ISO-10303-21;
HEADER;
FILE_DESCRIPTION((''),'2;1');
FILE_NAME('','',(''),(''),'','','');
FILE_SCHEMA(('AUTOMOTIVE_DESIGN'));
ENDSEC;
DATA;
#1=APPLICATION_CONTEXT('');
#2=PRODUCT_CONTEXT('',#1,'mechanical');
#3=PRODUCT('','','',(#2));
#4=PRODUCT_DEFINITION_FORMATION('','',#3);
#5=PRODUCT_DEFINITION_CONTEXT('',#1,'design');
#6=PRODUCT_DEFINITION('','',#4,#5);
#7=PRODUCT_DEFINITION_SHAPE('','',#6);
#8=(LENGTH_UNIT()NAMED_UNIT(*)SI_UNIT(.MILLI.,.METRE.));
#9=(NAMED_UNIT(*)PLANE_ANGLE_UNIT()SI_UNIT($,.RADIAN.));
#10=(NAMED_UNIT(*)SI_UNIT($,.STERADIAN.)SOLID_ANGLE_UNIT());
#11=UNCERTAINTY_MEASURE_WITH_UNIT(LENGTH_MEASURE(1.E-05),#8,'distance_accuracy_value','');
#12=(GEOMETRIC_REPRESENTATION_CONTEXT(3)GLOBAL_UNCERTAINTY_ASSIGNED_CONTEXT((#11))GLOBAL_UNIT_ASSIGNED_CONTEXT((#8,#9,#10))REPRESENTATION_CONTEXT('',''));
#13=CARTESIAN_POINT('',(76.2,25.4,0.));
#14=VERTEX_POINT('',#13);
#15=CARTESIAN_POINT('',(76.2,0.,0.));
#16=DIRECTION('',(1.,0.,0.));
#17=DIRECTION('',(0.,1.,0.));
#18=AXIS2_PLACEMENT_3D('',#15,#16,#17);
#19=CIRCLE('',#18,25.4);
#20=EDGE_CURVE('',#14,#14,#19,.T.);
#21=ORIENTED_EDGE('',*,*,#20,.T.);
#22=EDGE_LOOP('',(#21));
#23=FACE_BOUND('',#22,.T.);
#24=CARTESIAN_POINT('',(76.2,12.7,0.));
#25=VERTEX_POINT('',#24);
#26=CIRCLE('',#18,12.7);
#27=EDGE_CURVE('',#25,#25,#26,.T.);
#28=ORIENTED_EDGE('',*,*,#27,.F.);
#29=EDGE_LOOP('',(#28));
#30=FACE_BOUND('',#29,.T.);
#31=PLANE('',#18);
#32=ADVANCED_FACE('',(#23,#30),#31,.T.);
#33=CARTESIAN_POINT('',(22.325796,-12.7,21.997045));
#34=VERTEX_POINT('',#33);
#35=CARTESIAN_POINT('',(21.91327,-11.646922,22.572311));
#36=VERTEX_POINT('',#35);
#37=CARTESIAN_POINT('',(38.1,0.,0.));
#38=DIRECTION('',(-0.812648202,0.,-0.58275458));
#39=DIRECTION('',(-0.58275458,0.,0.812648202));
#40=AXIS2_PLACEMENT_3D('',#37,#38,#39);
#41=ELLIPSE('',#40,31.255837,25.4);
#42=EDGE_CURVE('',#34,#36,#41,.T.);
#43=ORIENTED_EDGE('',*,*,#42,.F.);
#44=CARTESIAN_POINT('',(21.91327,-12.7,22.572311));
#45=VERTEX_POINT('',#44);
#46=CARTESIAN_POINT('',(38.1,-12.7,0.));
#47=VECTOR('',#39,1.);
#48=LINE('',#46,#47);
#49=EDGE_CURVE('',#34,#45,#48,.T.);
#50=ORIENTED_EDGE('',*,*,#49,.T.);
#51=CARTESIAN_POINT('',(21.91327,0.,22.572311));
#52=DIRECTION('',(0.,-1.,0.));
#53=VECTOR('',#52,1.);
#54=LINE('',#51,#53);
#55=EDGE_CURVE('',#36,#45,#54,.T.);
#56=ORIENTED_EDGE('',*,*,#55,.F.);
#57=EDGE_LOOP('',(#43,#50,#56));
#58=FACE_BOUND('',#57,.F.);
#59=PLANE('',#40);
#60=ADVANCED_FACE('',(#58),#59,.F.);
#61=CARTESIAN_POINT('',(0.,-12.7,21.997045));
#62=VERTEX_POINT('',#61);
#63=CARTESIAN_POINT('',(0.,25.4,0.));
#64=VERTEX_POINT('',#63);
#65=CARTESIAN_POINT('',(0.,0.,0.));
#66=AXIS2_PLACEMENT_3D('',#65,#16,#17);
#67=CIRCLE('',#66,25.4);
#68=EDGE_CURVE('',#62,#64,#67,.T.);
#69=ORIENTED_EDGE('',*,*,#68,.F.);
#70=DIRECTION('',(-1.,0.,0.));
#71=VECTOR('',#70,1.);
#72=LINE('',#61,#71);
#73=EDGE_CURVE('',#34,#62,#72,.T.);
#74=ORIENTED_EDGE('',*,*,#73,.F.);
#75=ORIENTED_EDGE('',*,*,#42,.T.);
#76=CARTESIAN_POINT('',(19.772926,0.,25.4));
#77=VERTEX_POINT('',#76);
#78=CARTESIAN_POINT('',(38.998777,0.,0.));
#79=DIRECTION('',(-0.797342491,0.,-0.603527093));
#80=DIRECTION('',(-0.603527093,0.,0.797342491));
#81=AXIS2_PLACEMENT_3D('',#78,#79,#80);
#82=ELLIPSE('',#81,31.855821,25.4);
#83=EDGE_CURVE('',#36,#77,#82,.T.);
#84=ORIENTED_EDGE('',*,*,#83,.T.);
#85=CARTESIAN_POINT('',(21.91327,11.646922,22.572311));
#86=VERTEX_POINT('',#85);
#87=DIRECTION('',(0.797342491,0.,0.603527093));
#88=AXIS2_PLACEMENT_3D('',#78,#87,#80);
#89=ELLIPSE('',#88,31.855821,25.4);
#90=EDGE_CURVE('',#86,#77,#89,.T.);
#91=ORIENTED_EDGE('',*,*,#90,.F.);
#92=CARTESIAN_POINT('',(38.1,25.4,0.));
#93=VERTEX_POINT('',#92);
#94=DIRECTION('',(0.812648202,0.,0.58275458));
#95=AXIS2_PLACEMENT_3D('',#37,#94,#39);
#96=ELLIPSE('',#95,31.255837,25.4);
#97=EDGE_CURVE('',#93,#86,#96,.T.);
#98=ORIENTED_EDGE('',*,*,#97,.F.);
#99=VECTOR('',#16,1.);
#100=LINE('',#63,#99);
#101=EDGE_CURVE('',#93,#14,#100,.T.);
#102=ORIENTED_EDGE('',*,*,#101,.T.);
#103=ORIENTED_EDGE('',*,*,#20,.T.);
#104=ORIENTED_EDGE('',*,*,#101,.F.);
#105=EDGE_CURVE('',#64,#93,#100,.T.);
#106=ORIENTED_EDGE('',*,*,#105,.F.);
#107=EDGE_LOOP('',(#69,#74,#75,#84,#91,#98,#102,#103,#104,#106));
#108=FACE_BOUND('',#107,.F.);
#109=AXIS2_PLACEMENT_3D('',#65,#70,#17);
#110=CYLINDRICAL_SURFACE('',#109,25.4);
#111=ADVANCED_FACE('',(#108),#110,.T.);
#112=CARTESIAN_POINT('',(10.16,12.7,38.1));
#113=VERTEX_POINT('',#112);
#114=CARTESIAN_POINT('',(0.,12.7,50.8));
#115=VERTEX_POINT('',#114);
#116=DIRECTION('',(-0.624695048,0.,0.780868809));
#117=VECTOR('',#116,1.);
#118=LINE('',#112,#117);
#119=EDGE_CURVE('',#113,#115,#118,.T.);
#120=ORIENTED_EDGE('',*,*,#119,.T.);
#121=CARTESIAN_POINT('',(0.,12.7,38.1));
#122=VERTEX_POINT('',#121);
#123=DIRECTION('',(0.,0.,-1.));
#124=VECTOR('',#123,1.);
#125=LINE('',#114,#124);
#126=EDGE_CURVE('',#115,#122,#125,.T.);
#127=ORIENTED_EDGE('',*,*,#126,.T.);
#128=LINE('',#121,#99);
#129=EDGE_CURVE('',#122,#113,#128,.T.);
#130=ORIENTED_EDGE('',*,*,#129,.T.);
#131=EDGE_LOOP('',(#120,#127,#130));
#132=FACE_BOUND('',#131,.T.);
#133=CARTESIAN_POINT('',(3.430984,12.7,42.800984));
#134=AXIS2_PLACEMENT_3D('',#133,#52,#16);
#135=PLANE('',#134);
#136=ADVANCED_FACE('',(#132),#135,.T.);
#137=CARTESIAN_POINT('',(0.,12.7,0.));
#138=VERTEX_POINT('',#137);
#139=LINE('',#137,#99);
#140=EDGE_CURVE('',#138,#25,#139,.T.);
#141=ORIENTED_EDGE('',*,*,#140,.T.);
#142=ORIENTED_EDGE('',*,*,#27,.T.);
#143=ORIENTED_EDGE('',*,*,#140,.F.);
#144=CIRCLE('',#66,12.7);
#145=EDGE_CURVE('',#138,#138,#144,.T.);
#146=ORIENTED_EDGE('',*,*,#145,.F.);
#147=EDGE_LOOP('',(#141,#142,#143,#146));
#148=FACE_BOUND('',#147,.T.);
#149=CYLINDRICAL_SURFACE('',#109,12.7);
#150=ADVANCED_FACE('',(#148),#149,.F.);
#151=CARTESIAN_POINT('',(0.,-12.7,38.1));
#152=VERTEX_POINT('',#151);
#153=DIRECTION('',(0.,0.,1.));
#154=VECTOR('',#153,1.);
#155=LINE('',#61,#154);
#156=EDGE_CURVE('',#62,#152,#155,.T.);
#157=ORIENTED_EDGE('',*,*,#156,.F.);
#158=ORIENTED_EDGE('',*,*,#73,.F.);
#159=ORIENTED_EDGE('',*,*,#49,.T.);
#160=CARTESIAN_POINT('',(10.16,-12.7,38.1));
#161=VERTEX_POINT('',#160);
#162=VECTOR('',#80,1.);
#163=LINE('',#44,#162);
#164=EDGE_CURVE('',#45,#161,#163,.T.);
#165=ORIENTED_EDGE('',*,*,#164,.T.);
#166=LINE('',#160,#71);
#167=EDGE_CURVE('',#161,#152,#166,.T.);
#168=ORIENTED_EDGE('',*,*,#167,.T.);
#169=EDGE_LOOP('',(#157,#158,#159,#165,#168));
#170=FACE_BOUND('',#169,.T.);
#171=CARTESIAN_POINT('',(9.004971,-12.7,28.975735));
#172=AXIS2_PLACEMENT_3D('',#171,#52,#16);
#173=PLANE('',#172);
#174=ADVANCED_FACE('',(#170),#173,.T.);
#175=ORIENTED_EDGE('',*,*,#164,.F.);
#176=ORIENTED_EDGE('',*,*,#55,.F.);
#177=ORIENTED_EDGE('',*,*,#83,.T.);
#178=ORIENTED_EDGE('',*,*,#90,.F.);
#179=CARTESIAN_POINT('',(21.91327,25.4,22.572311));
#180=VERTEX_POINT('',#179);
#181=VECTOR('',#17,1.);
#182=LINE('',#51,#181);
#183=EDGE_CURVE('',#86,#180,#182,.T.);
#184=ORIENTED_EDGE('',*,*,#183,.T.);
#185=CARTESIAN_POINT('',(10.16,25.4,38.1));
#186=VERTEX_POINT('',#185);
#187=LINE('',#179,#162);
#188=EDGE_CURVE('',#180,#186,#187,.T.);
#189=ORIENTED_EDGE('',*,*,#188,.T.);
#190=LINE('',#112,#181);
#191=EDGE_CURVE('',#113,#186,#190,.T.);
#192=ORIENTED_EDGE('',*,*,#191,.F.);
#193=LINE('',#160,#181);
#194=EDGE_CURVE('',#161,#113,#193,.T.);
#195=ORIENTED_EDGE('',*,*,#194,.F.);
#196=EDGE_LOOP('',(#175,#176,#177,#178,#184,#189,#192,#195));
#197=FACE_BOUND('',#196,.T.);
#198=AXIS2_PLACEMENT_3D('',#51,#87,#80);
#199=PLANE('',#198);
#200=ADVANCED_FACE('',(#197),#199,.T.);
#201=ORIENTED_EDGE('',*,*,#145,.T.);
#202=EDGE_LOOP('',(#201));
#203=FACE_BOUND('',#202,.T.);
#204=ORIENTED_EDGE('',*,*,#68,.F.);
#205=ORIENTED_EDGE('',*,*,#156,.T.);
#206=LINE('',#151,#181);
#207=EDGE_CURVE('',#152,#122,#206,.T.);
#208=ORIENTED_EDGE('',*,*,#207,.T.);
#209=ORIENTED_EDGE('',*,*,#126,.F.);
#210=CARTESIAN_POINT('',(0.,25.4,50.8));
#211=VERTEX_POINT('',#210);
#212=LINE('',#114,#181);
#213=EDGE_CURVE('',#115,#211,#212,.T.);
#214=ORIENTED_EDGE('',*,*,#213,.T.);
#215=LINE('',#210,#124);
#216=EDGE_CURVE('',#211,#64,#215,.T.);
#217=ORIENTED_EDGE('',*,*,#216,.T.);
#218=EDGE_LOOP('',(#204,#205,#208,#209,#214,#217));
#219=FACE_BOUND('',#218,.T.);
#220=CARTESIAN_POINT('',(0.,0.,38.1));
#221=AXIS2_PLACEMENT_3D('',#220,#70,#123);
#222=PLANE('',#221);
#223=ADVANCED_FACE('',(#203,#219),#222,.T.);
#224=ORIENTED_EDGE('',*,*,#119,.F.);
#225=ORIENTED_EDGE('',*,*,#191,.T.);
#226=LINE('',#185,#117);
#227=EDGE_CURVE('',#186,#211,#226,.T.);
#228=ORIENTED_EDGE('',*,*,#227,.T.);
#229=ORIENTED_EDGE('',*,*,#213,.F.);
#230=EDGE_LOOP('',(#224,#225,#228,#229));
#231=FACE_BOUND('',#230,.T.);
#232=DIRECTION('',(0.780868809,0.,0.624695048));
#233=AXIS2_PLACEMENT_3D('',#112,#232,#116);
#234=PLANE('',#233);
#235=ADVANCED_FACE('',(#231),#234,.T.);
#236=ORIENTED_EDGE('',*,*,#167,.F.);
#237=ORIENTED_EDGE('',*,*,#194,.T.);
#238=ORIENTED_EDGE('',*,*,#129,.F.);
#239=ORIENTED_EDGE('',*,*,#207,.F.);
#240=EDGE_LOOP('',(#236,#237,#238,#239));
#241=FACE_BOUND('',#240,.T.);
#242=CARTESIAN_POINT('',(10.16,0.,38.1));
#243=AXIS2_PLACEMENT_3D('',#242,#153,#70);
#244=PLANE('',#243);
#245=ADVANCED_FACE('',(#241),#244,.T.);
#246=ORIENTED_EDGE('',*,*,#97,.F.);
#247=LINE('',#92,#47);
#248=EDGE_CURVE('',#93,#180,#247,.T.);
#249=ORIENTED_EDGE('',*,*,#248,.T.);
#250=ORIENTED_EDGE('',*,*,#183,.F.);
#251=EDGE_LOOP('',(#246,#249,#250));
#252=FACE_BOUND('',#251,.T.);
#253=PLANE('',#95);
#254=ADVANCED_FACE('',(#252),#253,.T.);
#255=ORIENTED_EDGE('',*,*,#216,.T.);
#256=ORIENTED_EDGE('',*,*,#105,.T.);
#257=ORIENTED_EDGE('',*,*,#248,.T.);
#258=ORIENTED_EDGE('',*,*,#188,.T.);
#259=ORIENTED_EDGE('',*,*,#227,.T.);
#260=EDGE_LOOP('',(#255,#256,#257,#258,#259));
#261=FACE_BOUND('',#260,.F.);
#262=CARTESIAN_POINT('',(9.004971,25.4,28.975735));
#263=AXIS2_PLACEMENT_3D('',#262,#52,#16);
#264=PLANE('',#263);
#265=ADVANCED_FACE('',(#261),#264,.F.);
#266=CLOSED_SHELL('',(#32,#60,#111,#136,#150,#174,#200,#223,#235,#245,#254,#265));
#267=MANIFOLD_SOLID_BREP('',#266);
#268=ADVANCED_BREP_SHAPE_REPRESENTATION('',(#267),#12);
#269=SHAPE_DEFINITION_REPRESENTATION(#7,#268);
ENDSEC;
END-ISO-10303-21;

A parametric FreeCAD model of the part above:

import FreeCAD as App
import Part
import Sketcher

V = App.Vector
Q = App.Units.Quantity


def add_polygon(sketch, points):
    """Adds a closed chain of lines whose ends are joined by coincident constraints."""
    first, n = sketch.GeometryCount, len(points)
    for a, b in zip(points, points[1:] + points[:1]):
        sketch.addGeometry(Part.LineSegment(App.Vector(*a, 0), App.Vector(*b, 0)), False)
    for i in range(n):
        sketch.addConstraint(Sketcher.Constraint("Coincident", first + i, 2, first + (i + 1) % n, 1))

doc = App.newDocument("Part")
body = doc.addObject("PartDesign::Body", "Body")

# Sketch on YZ plane
sketch1 = doc.addObject("Sketcher::SketchObject", "Sketch")
body.addObject(sketch1)
sketch1.AttachmentSupport = (doc.YZ_Plane, [""])
sketch1.MapMode = "FlatFace"
sketch1.addGeometry(Part.Circle(V(0, 0, 0), V(0, 0, 1), 25.4), False)
sketch1.addGeometry(Part.Circle(V(0, 0, 0), V(0, 0, 1), 12.7), False)
sketch1.addConstraint(Sketcher.Constraint("Coincident", 0, 3, -1, 1))
sketch1.addConstraint(Sketcher.Constraint("Coincident", 1, 3, -1, 1))
sketch1.addConstraint(Sketcher.Constraint("Diameter", 0, Q("2 in")))
sketch1.addConstraint(Sketcher.Constraint("Diameter", 1, Q("1 in")))
pad1 = doc.addObject("PartDesign::Pad", "Pad")
body.addObject(pad1)
pad1.Profile = sketch1
pad1.Length = Q("3 in")
body2 = doc.addObject("PartDesign::Body", "Body001")

# Sketch on XZ plane
sketch2 = doc.addObject("Sketcher::SketchObject", "Sketch001")
body2.addObject(sketch2)
sketch2.AttachmentSupport = (doc.getObject("XZ_Plane001"), [""])
sketch2.MapMode = "FlatFace"
sketch2.AttachmentOffset = App.Placement(V(0, 0, -0.5 * 25.4), App.Rotation())
add_polygon(sketch2, [(0, 50.8), (0, 38.1), (10.16, 38.1)])  # lines 0-2
sketch2.addConstraint(Sketcher.Constraint("Vertical", 0))
sketch2.addConstraint(Sketcher.Constraint("Horizontal", 1))
sketch2.addConstraint(Sketcher.Constraint("PointOnObject", 0, 2, -2))
sketch2.addConstraint(Sketcher.Constraint("DistanceX", 1, 1, 1, 2, Q("0.4 in")))
sketch2.addConstraint(Sketcher.Constraint("DistanceY", 0, 2, 0, 1, Q("0.5 in")))
sketch2.addConstraint(Sketcher.Constraint("DistanceY", -1, 1, 2, 2, Q("2 in")))
pad2 = doc.addObject("PartDesign::Pad", "Pad001")
body2.addObject(pad2)
pad2.Profile = sketch2
pad2.Length = Q("0.5 in")
pad2.Reversed = True
body.AllowCompound = True
doc.recompute()

boolean = doc.addObject("PartDesign::Boolean", "Boolean")
body.addObject(boolean)
boolean.Type = "Fuse"
boolean.addObjects([body2])

# Sketch on XZ plane
sketch3 = doc.addObject("Sketcher::SketchObject", "Sketch002")
body.addObject(sketch3)
sketch3.AttachmentSupport = (doc.XZ_Plane, [""])
sketch3.MapMode = "FlatFace"
add_polygon(sketch3, [(0, 38.1), (0, 22.572311), (21.91327, 22.572311), (10.16, 38.1)])  # lines 0-3
sketch3.addConstraint(Sketcher.Constraint("Vertical", 0))
sketch3.addConstraint(Sketcher.Constraint("Horizontal", 1))
sketch3.addConstraint(Sketcher.Constraint("Horizontal", 3))
sketch3.addConstraint(Sketcher.Constraint("PointOnObject", 0, 2, -2))
sketch3.addConstraint(Sketcher.Constraint("DistanceX", 3, 2, 3, 1, Q("0.4 in")))
sketch3.addConstraint(Sketcher.Constraint("DistanceY", -1, 1, 2, 2, Q("1.5 in")))
sketch3.addConstraint(Sketcher.Constraint("DistanceX", 1, 1, 1, 2, 21.91327))
sketch3.addConstraint(Sketcher.Constraint("DistanceY", 0, 2, 0, 1, 15.527689))
pad3 = doc.addObject("PartDesign::Pad", "Pad002")
body.addObject(pad3)
pad3.Profile = sketch3
pad3.Type = "TwoLengths"
pad3.Length = Q("0.5 in")
pad3.Length2 = Q("1 in")

# Sketch on XZ plane
sketch4 = doc.addObject("Sketcher::SketchObject", "Sketch003")
body.addObject(sketch4)
sketch4.AttachmentSupport = (doc.XZ_Plane, [""])
sketch4.MapMode = "FlatFace"
add_polygon(sketch4, [(0, 22.572311), (0, 0), (38.1, 0), (21.91327, 22.572311)])  # lines 0-3
sketch4.addConstraint(Sketcher.Constraint("Vertical", 0))
sketch4.addConstraint(Sketcher.Constraint("Horizontal", 1))
sketch4.addConstraint(Sketcher.Constraint("Horizontal", 3))
sketch4.addConstraint(Sketcher.Constraint("Coincident", 0, 2, -1, 1))
sketch4.addConstraint(Sketcher.Constraint("DistanceX", 1, 1, 1, 2, Q("1.5 in")))
sketch4.addConstraint(Sketcher.Constraint("DistanceX", 3, 2, 3, 1, 21.91327))
sketch4.addConstraint(Sketcher.Constraint("DistanceY", 0, 2, 0, 1, 22.572311))
pad4 = doc.addObject("PartDesign::Pad", "Pad003")
body.addObject(pad4)
pad4.Profile = sketch4
pad4.Type = "TwoLengths"
pad4.Length = Q("0.5 in")
pad4.Length2 = Q("1 in")

# Sketch on YZ plane
sketch5 = doc.addObject("Sketcher::SketchObject", "Sketch004")
body.addObject(sketch5)
sketch5.AttachmentSupport = (doc.YZ_Plane, [""])
sketch5.MapMode = "FlatFace"
sketch5.addGeometry(Part.Circle(V(0, 0, 0), V(0, 0, 1), 12.7), False)
sketch5.addConstraint(Sketcher.Constraint("Coincident", 0, 3, -1, 1))
sketch5.addConstraint(Sketcher.Constraint("Diameter", 0, Q("1 in")))
pocket1 = doc.addObject("PartDesign::Pocket", "Pocket")
body.addObject(pocket1)
pocket1.Profile = sketch5
pocket1.Type = "ThroughAll"
pocket1.Reversed = True

doc.recompute()
